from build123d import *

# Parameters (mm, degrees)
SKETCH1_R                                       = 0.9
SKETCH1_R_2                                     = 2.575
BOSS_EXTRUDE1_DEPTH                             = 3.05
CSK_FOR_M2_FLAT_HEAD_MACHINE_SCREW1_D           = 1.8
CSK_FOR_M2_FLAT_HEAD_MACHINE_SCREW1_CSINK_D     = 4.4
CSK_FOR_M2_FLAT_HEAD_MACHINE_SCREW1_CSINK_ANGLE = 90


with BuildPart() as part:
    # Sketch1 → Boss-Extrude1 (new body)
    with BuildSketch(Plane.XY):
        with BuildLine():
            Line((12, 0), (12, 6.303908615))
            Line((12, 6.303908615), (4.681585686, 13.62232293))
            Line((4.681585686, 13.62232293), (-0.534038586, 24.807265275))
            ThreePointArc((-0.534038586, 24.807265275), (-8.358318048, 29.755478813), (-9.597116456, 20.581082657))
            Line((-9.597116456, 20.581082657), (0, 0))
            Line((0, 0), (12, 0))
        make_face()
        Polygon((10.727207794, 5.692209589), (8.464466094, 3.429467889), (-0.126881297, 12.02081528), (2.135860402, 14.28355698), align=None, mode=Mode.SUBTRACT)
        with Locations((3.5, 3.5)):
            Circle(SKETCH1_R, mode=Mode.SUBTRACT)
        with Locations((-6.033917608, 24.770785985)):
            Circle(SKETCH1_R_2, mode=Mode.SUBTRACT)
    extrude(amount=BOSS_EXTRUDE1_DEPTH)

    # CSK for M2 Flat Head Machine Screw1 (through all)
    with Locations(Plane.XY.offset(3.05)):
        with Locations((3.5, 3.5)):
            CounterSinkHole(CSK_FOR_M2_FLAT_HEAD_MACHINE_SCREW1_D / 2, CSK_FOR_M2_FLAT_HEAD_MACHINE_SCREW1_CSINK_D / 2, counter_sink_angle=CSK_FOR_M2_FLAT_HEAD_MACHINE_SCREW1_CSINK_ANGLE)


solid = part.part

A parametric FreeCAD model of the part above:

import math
import FreeCAD as App
import Part
import Sketcher

V = App.Vector
Q = App.Units.Quantity

doc = App.newDocument("Part")
body = doc.addObject("PartDesign::Body", "Body")

sketch1 = body.newObject("Sketcher::SketchObject", "Sketch")
sketch1.AttachmentSupport = (doc.getObject("XY_Plane"), [""])
sketch1.MapMode = "FlatFace"
sketch1.addGeometry(Part.LineSegment(V(12, 0, 0), V(12, 6.303909, 0)), False)
sketch1.addGeometry(Part.LineSegment(V(12, 6.303909, 0), V(4.681586, 13.622323, 0)), False)
sketch1.addGeometry(Part.LineSegment(V(4.681586, 13.622323, 0), V(-0.534039, 24.807265, 0)), False)
sketch1.addGeometry(Part.ArcOfCircle(Part.Circle(V(-6.033918, 24.770786, 0), V(0, 0, 1), 5.5), math.radians(0.380023), math.radians(229.619977)), False)
sketch1.addGeometry(Part.LineSegment(V(-9.597116, 20.581083, 0), V(0, 0, 0)), False)
sketch1.addGeometry(Part.LineSegment(V(0, 0, 0), V(12, 0, 0)), False)
sketch1.addGeometry(Part.Circle(V(3.5, 3.5, 0), V(0, 0, 1), 0.9), False)
sketch1.addGeometry(Part.LineSegment(V(2.13586, 14.283557, 0), V(10.727208, 5.69221, 0)), False)
sketch1.addGeometry(Part.LineSegment(V(10.727208, 5.69221, 0), V(8.464466, 3.429468, 0)), False)
sketch1.addGeometry(Part.LineSegment(V(8.464466, 3.429468, 0), V(-0.126881, 12.020815, 0)), False)
sketch1.addGeometry(Part.LineSegment(V(-0.126881, 12.020815, 0), V(2.13586, 14.283557, 0)), False)
sketch1.addGeometry(Part.Circle(V(-6.033918, 24.770786, 0), V(0, 0, 1), 2.575), False)
sketch1.addConstraint(Sketcher.Constraint("Coincident", 0, 2, 1, 1))
sketch1.addConstraint(Sketcher.Constraint("Coincident", 1, 2, 2, 1))
sketch1.addConstraint(Sketcher.Constraint("Coincident", 2, 2, 3, 1))
sketch1.addConstraint(Sketcher.Constraint("Coincident", 3, 2, 4, 1))
sketch1.addConstraint(Sketcher.Constraint("Coincident", 4, 2, 5, 1))
sketch1.addConstraint(Sketcher.Constraint("Coincident", 5, 2, 0, 1))
sketch1.addConstraint(Sketcher.Constraint("Coincident", 7, 2, 8, 1))
sketch1.addConstraint(Sketcher.Constraint("Coincident", 8, 2, 9, 1))
sketch1.addConstraint(Sketcher.Constraint("Coincident", 9, 2, 10, 1))
sketch1.addConstraint(Sketcher.Constraint("Coincident", 10, 2, 7, 1))
sketch1.addConstraint(Sketcher.Constraint("Vertical", 0))
sketch1.addConstraint(Sketcher.Constraint("Horizontal", 5))
sketch1.addConstraint(Sketcher.Constraint("Coincident", 4, 2, -1, 1))
sketch1.addConstraint(Sketcher.Constraint("Coincident", 11, 3, 3, 3))
sketch1.addConstraint(Sketcher.Constraint("Parallel", 2, 4))
sketch1.addConstraint(Sketcher.Constraint("Parallel", 1, 7))
sketch1.addConstraint(Sketcher.Constraint("Perpendicular", 7, 8))
sketch1.addConstraint(Sketcher.Constraint("Perpendicular", 8, 9))
sketch1.addConstraint(Sketcher.Constraint("Perpendicular", 9, 10))
sketch1.addConstraint(Sketcher.Constraint("Diameter", 6, Q("1.8 mm")))
sketch1.addConstraint(Sketcher.Constraint("Radius", 3, Q("5.5 mm")))
sketch1.addConstraint(Sketcher.Constraint("Diameter", 11, Q("5.15 mm")))
sketch1.addConstraint(Sketcher.Constraint("DistanceX", 5, 1, 5, 2, Q("12 mm")))
sketch1.addConstraint(Sketcher.Constraint("Angle", 1, Q("135 deg")))
sketch1.addConstraint(Sketcher.Constraint("Angle", 2, Q("115 deg")))
sketch1.addConstraint(Sketcher.Constraint("Distance", 8, Q("3.2 mm")))
sketch1.addConstraint(Sketcher.Constraint("DistanceX", -1, 1, 6, 3, Q("3.5 mm")))
sketch1.addConstraint(Sketcher.Constraint("DistanceY", -1, 1, 6, 3, Q("3.5 mm")))
sketch1.addConstraint(Sketcher.Constraint("Distance", 7, Q("12.15 mm")))
sketch1.addConstraint(Sketcher.Constraint("Distance", 1, Q("10.349801 mm")))
sketch1.addConstraint(Sketcher.Constraint("DistanceY", 0, 1, 0, 2, Q("6.303909 mm")))
sketch1.addConstraint(Sketcher.Constraint("DistanceX", 3, 2, 3, 3, Q("3.563199 mm")))
sketch1.addConstraint(Sketcher.Constraint("DistanceY", 7, 2, 0, 2, Q("0.611699 mm")))
sketch1.addConstraint(Sketcher.Constraint("DistanceX", 2, 2, 10, 2, Q("2.669899 mm")))
sketch1.addConstraint(Sketcher.Constraint("Distance", 2, Q("12.341218 mm")))
pad1 = body.newObject("PartDesign::Pad", "Pad")
pad1.Profile = sketch1
pad1.Length = 3.05

sketch2 = body.newObject("Sketcher::SketchObject", "Sketch001")
sketch2.AttachmentSupport = (doc.getObject("XY_Plane"), [""])
sketch2.MapMode = "FlatFace"
sketch2.AttachmentOffset = App.Placement(V(0, 0, 3.05), App.Rotation())
sketch2.addGeometry(Part.Circle(V(3.5, 3.5, 0), V(0, 0, 1), 0.9), False)
sketch2.addConstraint(Sketcher.Constraint("Diameter", 0, Q("1.8 mm")))
sketch2.addConstraint(Sketcher.Constraint("DistanceX", -1, 1, 0, 3, Q("3.5 mm")))
sketch2.addConstraint(Sketcher.Constraint("DistanceY", -1, 1, 0, 3, Q("3.5 mm")))
doc.recompute()
hole = body.newObject("PartDesign::Hole", "Hole")
hole.Profile = sketch2
hole.ThreadType = "None"
hole.Diameter = 1.8
hole.DepthType = "ThroughAll"
hole.HoleCutType = "Countersink"
hole.HoleCutDiameter = 4.4
hole.HoleCutCountersinkAngle = 90

doc.recompute()
